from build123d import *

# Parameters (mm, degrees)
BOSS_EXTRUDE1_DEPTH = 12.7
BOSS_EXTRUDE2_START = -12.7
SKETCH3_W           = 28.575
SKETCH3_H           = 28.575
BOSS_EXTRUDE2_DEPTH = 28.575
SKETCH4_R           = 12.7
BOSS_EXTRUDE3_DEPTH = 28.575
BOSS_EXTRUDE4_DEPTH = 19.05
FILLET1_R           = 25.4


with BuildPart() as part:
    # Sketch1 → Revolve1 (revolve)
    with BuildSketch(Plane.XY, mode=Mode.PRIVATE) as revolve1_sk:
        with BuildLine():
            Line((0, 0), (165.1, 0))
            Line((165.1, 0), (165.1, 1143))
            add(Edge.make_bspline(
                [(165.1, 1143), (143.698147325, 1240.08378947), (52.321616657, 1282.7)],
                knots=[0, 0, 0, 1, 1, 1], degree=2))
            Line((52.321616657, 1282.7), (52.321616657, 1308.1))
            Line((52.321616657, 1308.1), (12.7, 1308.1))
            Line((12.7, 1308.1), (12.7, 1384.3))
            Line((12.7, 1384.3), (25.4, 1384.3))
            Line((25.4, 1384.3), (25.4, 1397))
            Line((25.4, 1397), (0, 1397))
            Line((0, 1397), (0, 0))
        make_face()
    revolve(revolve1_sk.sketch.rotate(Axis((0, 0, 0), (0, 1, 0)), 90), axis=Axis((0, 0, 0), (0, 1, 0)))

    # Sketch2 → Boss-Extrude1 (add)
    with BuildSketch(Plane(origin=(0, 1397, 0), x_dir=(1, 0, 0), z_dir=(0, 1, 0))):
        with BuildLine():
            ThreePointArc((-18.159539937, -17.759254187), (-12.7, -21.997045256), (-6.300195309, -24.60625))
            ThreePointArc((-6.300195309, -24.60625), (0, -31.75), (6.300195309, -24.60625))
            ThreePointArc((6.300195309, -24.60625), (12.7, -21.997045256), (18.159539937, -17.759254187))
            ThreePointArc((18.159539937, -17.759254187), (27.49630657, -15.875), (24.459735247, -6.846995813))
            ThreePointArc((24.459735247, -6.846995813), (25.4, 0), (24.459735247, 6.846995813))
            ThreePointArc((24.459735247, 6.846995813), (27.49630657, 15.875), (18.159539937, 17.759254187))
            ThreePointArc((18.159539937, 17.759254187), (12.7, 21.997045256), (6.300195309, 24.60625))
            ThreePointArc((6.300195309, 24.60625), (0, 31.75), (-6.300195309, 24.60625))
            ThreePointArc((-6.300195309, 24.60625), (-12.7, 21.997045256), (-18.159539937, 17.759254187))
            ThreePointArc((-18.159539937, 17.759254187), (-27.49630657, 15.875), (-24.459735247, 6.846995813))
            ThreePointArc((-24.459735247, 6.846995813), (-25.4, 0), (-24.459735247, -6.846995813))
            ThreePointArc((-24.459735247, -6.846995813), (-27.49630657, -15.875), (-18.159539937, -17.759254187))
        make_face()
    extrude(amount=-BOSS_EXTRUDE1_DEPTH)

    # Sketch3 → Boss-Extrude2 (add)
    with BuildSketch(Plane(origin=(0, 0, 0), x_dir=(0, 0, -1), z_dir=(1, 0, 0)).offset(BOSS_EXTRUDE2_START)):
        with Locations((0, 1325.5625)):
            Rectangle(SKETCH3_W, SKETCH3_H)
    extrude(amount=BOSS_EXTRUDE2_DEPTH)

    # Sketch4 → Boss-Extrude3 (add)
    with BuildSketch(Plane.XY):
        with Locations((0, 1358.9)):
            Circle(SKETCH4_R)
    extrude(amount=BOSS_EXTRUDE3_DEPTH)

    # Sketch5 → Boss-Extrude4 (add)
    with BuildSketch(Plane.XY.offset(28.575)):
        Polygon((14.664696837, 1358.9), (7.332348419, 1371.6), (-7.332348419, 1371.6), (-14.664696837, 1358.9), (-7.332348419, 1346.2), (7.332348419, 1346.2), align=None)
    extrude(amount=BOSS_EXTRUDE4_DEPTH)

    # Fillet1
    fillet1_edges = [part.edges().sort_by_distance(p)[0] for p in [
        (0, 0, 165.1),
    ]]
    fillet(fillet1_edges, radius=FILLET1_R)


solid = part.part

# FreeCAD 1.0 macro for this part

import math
import FreeCAD as App
import Part
import Sketcher
Q = App.Units.Quantity


def edges_at(feature, points):
    """Names of the edges that pass closest to the given points."""
    edges = feature.Shape.Edges
    near = lambda p: min(range(len(edges)), key=lambda i: edges[i].distToShape(Part.Vertex(*p))[0])
    return sorted({f"Edge{near(p) + 1}" for p in points})


def add_polygon(sketch, points):
    """Adds a closed chain of lines whose ends are joined by coincident constraints."""
    first, n = sketch.GeometryCount, len(points)
    for a, b in zip(points, points[1:] + points[:1]):
        sketch.addGeometry(Part.LineSegment(App.Vector(*a, 0), App.Vector(*b, 0)), False)
    for i in range(n):
        sketch.addConstraint(Sketcher.Constraint("Coincident", first + i, 2, first + (i + 1) % n, 1))

doc = App.newDocument("Part")
body = doc.addObject("PartDesign::Body", "Body")

sketch1 = body.newObject("Sketcher::SketchObject", "Sketch")
sketch1.AttachmentSupport = (doc.getObject("XY_Plane"), [""])
sketch1.MapMode = "FlatFace"
sketch1.addGeometry([
    Part.LineSegment(App.Vector(0, 0, 0), App.Vector(165.1, 0, 0)),
    Part.LineSegment(App.Vector(165.1, 0, 0), App.Vector(165.1, 1143, 0)),
    Part.BSplineCurve([App.Vector(165.1, 1143, 0), App.Vector(143.698147, 1240.083789, 0), App.Vector(52.321617, 1282.7, 0)], [3, 3], [0, 1], False, 2, [1, 1, 1], False),
    Part.LineSegment(App.Vector(52.321617, 1282.7, 0), App.Vector(52.321617, 1308.1, 0)),
    Part.LineSegment(App.Vector(52.321617, 1308.1, 0), App.Vector(12.7, 1308.1, 0)),
    Part.LineSegment(App.Vector(12.7, 1308.1, 0), App.Vector(12.7, 1384.3, 0)),
    Part.LineSegment(App.Vector(12.7, 1384.3, 0), App.Vector(25.4, 1384.3, 0)),
    Part.LineSegment(App.Vector(25.4, 1384.3, 0), App.Vector(25.4, 1397, 0)),
    Part.LineSegment(App.Vector(25.4, 1397, 0), App.Vector(0, 1397, 0)),
    Part.LineSegment(App.Vector(0, 1397, 0), App.Vector(0, 0, 0)),
], False)
sketch1.addConstraint([
    Sketcher.Constraint("Block", 2),
    Sketcher.Constraint("Coincident", 0, 2, 1, 1),
    Sketcher.Constraint("Coincident", 1, 2, 2, 1),
    Sketcher.Constraint("Coincident", 2, 2, 3, 1),
    Sketcher.Constraint("Coincident", 3, 2, 4, 1),
    Sketcher.Constraint("Coincident", 4, 2, 5, 1),
    Sketcher.Constraint("Coincident", 5, 2, 6, 1),
    Sketcher.Constraint("Coincident", 6, 2, 7, 1),
    Sketcher.Constraint("Coincident", 7, 2, 8, 1),
    Sketcher.Constraint("Coincident", 8, 2, 9, 1),
    Sketcher.Constraint("Coincident", 9, 2, 0, 1),
    Sketcher.Constraint("Horizontal", 0),
    Sketcher.Constraint("Vertical", 1),
    Sketcher.Constraint("Vertical", 3),
    Sketcher.Constraint("Horizontal", 4),
    Sketcher.Constraint("Vertical", 5),
    Sketcher.Constraint("Horizontal", 6),
    Sketcher.Constraint("Vertical", 7),
    Sketcher.Constraint("Horizontal", 8),
    Sketcher.Constraint("Vertical", 9),
    Sketcher.Constraint("Coincident", 9, 2, -1, 1),
    Sketcher.Constraint("Equal", 8, 3),
    Sketcher.Constraint("Equal", 6, 7),
    Sketcher.Constraint("DistanceX", 8, 2, 8, 1, Q("1 in")),
    Sketcher.Constraint("DistanceY", 5, 1, 5, 2, Q("3 in")),
    Sketcher.Constraint("DistanceY", 9, 2, 9, 1, Q("55 in")),
])
revolution = body.newObject("PartDesign::Revolution", "Revolution")
revolution.Profile = sketch1
revolution.ReferenceAxis = (sketch1, ["V_Axis"])
revolution.Angle = 360

sketch2 = body.newObject("Sketcher::SketchObject", "Sketch001")
sketch2.AttachmentSupport = (doc.getObject("XZ_Plane"), [""])
sketch2.MapMode = "FlatFace"
sketch2.AttachmentOffset = App.Placement(App.Vector(0, 0, -55 * 25.4), App.Rotation())
sketch2.addGeometry([
    Part.ArcOfCircle(Part.Circle(App.Vector(0, 0, 0), App.Vector(0, 0, 1), 25), math.radians(104), math.radians(136)),
    Part.ArcOfCircle(Part.Circle(App.Vector(0, 25, 0), App.Vector(0, 0, 1), 6), math.radians(-7), math.radians(187)),
    Part.ArcOfCircle(Part.Circle(App.Vector(0, 0, 0), App.Vector(0, 0, 1), 25), math.radians(44), math.radians(76)),
    Part.ArcOfCircle(Part.Circle(App.Vector(22, 13, 0), App.Vector(0, 0, 1), 6), math.radians(-67), math.radians(127)),
    Part.ArcOfCircle(Part.Circle(App.Vector(0, 0, 0), App.Vector(0, 0, 1), 25), math.radians(-16), math.radians(16)),
    Part.ArcOfCircle(Part.Circle(App.Vector(22, -13, 0), App.Vector(0, 0, 1), 6), math.radians(-127), math.radians(67)),
    Part.ArcOfCircle(Part.Circle(App.Vector(0, 0, 0), App.Vector(0, 0, 1), 25), math.radians(-76), math.radians(-44)),
    Part.ArcOfCircle(Part.Circle(App.Vector(0, -25, 0), App.Vector(0, 0, 1), 6), math.radians(173), math.radians(367)),
    Part.ArcOfCircle(Part.Circle(App.Vector(0, 0, 0), App.Vector(0, 0, 1), 25), math.radians(-136), math.radians(-104)),
    Part.ArcOfCircle(Part.Circle(App.Vector(-22, -13, 0), App.Vector(0, 0, 1), 6), math.radians(113), math.radians(307)),
    Part.ArcOfCircle(Part.Circle(App.Vector(0, 0, 0), App.Vector(0, 0, 1), 25), math.radians(164), math.radians(196)),
    Part.ArcOfCircle(Part.Circle(App.Vector(-22, 13, 0), App.Vector(0, 0, 1), 6), math.radians(53), math.radians(247)),
], False)
sketch2.addConstraint([
    Sketcher.Constraint("Coincident", 0, 1, 1, 2),
    Sketcher.Constraint("Coincident", 1, 1, 2, 2),
    Sketcher.Constraint("Coincident", 2, 1, 3, 2),
    Sketcher.Constraint("Coincident", 3, 1, 4, 2),
    Sketcher.Constraint("Coincident", 4, 1, 5, 2),
    Sketcher.Constraint("Coincident", 5, 1, 6, 2),
    Sketcher.Constraint("Coincident", 6, 1, 7, 2),
    Sketcher.Constraint("Coincident", 7, 1, 8, 2),
    Sketcher.Constraint("Coincident", 8, 1, 9, 2),
    Sketcher.Constraint("Coincident", 9, 1, 10, 2),
    Sketcher.Constraint("Coincident", 10, 1, 11, 2),
    Sketcher.Constraint("Coincident", 11, 1, 0, 2),
    Sketcher.Constraint("Coincident", 0, 3, -1, 1),
    Sketcher.Constraint("Coincident", 2, 3, -1, 1),
    Sketcher.Constraint("Coincident", 4, 3, -1, 1),
    Sketcher.Constraint("Coincident", 6, 3, -1, 1),
    Sketcher.Constraint("Coincident", 8, 3, -1, 1),
    Sketcher.Constraint("Coincident", 10, 3, -1, 1),
    Sketcher.Constraint("Equal", 0, 2),
    Sketcher.Constraint("Equal", 1, 3),
    Sketcher.Constraint("Equal", 2, 4),
    Sketcher.Constraint("Equal", 3, 5),
    Sketcher.Constraint("Equal", 4, 6),
    Sketcher.Constraint("Equal", 5, 7),
    Sketcher.Constraint("Equal", 6, 8),
    Sketcher.Constraint("Equal", 7, 9),
    Sketcher.Constraint("Equal", 8, 10),
    Sketcher.Constraint("Equal", 9, 11),
    Sketcher.Constraint("Symmetric", 1, 3, 7, 3, -1, 1),
    Sketcher.Constraint("Symmetric", 3, 3, 9, 3, -1, 1),
    Sketcher.Constraint("Symmetric", 5, 3, 11, 3, -1, 1),
    Sketcher.Constraint("Symmetric", 5, 3, 9, 3, -2),
    Sketcher.Constraint("PointOnObject", 1, 3, -2),
    Sketcher.Constraint("Radius", 0, Q("1 in")),
    Sketcher.Constraint("Radius", 1, Q("0.25 in")),
    Sketcher.Constraint("DistanceY", -1, 1, 1, 3, Q("1 in")),
    Sketcher.Constraint("DistanceY", 5, 3, 3, 3, Q("1 in")),
    Sketcher.Constraint("DistanceX", -1, 1, 2, 1, Q("18.15954 mm")),
])
pad1 = body.newObject("PartDesign::Pad", "Pad")
pad1.Profile = sketch2
pad1.Length = Q("0.5 in")

sketch3 = body.newObject("Sketcher::SketchObject", "Sketch002")
sketch3.AttachmentSupport = (doc.getObject("YZ_Plane"), [""])
sketch3.MapMode = "FlatFace"
sketch3.AttachmentOffset = App.Placement(App.Vector(0, 0, -0.5 * 25.4), App.Rotation())
add_polygon(sketch3, [(1340, 14), (1311, 14), (1311, -14), (1340, -14)])
sketch3.addConstraint([
    Sketcher.Constraint("Horizontal", 0),
    Sketcher.Constraint("Vertical", 1),
    Sketcher.Constraint("Horizontal", 2),
    Sketcher.Constraint("Vertical", 3),
    Sketcher.Constraint("Equal", 2, 1),
    Sketcher.Constraint("DistanceX", 0, 2, 0, 1, Q("1.125 in")),
    Sketcher.Constraint("DistanceX", -1, 1, 2, 2, Q("52.75 in")),
    Sketcher.Constraint("DistanceY", -1, 1, 0, 2, Q("0.5625 in")),
])
pad2 = body.newObject("PartDesign::Pad", "Pad001")
pad2.Profile = sketch3
pad2.Length = Q("1.125 in")

sketch4 = body.newObject("Sketcher::SketchObject", "Sketch003")
sketch4.AttachmentSupport = (doc.getObject("XY_Plane"), [""])
sketch4.MapMode = "FlatFace"
sketch4.addGeometry(Part.Circle(App.Vector(0, 1359, 0), App.Vector(0, 0, 1), 13), False)
sketch4.addConstraint([
    Sketcher.Constraint("PointOnObject", 0, 3, -2),
    Sketcher.Constraint("Diameter", 0, Q("1 in")),
    Sketcher.Constraint("DistanceY", -1, 1, 0, 3, Q("53.5 in")),
])
pad3 = body.newObject("PartDesign::Pad", "Pad002")
pad3.Profile = sketch4
pad3.Length = Q("1.125 in")

sketch5 = body.newObject("Sketcher::SketchObject", "Sketch004")
sketch5.AttachmentSupport = (doc.getObject("XY_Plane"), [""])
sketch5.MapMode = "FlatFace"
sketch5.AttachmentOffset = App.Placement(App.Vector(0, 0, 1.125 * 25.4), App.Rotation())
add_polygon(sketch5, [(15, 1359), (7, 1372), (-7, 1372), (-15, 1359), (-7, 1346), (7, 1346)])
sketch5.addConstraint([
    Sketcher.Constraint("Horizontal", 1),
    Sketcher.Constraint("Horizontal", 4),
    Sketcher.Constraint("Symmetric", 2, 2, 5, 2, -2),
    Sketcher.Constraint("Parallel", 0, 3),
    Sketcher.Constraint("Parallel", 2, 5),
    Sketcher.Constraint("Vertical", 1, 2, 3, 2),
    Sketcher.Constraint("Vertical", 0, 2, 4, 2),
    Sketcher.Constraint("DistanceY", -1, 1, 0, 2, Q("54 in")),
    Sketcher.Constraint("DistanceY", -1, 1, 3, 2, Q("53 in")),
    Sketcher.Constraint("Angle", 0, Q("120 deg")),
    Sketcher.Constraint("DistanceX", 1, 2, 1, 1, Q("14.664697 mm")),
])
pad4 = body.newObject("PartDesign::Pad", "Pad003")
pad4.Profile = sketch5
pad4.Length = Q("0.75 in")
doc.recompute()

fillet = body.newObject("PartDesign::Fillet", "Fillet")
fillet.Base = (pad4, edges_at(pad4, [(0, 0, 165.1)]))
fillet.Radius = Q("1 in")

doc.recompute()
